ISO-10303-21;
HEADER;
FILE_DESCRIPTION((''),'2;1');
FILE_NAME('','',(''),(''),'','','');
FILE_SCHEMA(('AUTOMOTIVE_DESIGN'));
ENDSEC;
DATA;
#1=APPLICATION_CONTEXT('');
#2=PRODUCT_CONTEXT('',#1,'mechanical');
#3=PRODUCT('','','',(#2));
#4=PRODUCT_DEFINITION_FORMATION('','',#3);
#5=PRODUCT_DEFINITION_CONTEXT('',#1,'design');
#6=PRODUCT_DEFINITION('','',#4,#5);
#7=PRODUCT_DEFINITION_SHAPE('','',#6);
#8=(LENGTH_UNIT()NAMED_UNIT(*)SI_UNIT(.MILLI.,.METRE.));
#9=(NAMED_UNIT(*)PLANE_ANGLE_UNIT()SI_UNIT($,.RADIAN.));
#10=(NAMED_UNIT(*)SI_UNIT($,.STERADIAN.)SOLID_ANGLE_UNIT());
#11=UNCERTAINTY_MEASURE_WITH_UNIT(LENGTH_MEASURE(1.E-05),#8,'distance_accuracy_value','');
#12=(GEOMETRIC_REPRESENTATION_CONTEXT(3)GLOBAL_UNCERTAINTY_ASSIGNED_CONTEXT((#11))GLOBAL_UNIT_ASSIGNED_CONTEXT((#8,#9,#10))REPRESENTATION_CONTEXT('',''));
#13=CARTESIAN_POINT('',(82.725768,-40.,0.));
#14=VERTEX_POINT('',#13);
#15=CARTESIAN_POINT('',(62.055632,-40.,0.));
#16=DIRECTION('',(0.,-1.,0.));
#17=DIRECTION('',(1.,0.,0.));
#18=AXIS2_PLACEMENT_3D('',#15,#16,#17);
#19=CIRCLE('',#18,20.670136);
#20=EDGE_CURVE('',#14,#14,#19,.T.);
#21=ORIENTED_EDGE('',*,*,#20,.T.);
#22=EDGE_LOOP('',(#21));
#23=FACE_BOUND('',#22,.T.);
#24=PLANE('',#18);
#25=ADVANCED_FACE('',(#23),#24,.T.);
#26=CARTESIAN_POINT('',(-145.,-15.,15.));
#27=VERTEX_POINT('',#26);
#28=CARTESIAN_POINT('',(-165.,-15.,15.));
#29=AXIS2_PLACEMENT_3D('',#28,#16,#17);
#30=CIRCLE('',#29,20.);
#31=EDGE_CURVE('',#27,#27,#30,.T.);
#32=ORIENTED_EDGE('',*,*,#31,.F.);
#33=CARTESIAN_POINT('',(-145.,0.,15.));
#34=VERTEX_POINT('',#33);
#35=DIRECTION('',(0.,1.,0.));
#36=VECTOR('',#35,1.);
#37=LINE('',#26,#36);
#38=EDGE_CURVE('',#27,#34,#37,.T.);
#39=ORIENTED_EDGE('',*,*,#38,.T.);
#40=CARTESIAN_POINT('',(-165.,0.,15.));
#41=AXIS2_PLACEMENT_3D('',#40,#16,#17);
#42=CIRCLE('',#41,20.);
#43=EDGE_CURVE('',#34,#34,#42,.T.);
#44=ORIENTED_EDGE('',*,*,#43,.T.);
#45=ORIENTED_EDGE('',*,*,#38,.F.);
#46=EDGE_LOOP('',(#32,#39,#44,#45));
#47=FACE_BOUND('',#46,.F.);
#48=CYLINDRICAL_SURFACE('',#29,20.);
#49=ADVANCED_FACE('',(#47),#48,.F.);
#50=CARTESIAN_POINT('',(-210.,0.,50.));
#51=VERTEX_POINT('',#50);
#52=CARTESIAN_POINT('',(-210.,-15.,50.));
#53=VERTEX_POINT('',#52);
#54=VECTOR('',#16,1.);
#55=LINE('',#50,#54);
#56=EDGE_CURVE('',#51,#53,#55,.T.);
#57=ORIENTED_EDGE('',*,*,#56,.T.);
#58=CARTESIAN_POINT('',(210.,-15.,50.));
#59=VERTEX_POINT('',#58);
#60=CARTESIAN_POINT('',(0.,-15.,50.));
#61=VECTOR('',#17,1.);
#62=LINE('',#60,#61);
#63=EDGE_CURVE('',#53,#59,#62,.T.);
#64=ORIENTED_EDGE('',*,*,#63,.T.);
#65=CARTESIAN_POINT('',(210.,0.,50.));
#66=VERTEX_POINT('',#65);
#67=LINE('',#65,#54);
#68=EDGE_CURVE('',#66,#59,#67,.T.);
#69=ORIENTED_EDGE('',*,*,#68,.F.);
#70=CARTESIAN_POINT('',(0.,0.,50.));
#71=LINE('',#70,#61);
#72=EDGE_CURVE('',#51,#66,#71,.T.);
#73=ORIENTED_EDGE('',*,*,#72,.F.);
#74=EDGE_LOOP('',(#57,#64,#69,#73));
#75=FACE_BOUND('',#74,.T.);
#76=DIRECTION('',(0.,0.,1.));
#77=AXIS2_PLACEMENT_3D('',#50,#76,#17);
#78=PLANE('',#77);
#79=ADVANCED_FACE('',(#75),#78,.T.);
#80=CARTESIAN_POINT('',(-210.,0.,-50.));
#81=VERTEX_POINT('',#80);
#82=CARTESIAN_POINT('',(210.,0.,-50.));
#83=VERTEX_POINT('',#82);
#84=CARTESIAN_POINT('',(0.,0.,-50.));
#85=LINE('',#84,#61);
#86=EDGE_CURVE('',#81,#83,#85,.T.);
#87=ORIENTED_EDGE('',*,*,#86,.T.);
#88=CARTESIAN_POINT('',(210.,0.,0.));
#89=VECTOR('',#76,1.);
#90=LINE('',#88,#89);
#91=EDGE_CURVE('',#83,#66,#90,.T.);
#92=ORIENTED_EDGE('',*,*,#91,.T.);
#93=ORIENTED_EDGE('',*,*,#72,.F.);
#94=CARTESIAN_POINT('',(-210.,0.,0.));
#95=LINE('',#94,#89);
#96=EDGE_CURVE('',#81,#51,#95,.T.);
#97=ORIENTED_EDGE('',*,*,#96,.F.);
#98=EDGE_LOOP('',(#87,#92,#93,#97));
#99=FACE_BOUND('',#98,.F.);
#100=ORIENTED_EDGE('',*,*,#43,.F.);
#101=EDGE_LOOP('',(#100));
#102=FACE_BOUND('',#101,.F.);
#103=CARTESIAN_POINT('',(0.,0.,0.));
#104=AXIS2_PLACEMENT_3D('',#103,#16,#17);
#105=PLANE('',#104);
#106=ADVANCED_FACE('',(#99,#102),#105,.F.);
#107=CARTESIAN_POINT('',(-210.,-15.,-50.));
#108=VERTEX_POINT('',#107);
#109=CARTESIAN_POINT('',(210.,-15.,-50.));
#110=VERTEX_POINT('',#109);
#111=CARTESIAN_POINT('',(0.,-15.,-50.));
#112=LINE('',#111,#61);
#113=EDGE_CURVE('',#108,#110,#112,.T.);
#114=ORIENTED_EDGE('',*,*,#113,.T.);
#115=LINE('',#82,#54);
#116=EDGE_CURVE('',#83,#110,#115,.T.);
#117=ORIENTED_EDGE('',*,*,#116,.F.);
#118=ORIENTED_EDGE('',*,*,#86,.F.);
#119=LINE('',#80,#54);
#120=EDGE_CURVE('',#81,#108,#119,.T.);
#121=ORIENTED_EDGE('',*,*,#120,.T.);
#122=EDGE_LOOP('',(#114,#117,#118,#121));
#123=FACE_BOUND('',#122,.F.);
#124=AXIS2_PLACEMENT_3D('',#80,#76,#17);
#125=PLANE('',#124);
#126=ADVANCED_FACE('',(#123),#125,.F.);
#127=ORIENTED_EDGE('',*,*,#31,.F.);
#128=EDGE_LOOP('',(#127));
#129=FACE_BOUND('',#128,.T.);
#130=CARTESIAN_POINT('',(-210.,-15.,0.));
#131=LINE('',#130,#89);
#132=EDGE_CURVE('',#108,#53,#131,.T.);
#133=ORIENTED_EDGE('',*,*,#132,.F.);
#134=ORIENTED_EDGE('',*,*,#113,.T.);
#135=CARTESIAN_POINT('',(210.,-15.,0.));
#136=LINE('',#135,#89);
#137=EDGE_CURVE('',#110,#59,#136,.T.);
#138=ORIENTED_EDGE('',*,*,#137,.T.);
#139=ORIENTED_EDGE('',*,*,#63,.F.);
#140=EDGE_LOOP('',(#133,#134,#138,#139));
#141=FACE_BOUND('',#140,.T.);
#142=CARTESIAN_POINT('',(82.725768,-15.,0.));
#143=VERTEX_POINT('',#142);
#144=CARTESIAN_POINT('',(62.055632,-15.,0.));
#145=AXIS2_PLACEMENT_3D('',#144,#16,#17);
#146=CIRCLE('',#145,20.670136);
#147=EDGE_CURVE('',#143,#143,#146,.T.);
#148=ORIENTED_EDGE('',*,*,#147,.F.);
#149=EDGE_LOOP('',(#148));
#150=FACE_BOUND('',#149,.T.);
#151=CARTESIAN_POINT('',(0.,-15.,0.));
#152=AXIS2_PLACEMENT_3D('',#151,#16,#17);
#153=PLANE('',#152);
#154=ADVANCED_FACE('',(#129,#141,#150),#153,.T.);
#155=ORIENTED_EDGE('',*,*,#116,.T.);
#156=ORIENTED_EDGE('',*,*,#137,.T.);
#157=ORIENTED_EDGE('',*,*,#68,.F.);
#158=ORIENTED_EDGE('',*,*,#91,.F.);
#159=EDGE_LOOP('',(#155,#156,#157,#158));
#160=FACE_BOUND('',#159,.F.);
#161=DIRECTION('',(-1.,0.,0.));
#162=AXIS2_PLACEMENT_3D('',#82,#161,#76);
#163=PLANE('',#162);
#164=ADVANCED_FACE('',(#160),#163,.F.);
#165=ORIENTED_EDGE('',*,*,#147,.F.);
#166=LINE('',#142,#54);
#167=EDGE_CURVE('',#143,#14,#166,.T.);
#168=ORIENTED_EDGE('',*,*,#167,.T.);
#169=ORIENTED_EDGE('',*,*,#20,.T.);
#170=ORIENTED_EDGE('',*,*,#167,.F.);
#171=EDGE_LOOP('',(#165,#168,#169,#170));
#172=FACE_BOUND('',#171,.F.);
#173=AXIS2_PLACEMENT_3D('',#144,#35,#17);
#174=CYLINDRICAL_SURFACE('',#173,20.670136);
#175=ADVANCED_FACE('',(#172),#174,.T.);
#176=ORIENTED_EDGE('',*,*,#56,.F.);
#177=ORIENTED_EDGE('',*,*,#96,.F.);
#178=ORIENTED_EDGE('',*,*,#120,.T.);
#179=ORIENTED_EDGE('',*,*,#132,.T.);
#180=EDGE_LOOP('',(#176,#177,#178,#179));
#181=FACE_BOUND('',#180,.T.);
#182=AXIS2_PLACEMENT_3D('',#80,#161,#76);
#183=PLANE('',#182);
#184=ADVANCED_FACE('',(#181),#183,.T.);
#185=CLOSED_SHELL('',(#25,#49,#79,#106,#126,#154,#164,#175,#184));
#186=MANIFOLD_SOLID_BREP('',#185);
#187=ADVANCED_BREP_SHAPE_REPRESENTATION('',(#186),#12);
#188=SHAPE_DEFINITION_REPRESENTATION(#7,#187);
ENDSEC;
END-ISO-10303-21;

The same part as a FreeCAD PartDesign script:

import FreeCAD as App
import Part
import Sketcher
Q = App.Units.Quantity


def add_polygon(sketch, points):
    """Adds a closed chain of lines whose ends are joined by coincident constraints."""
    first, n = sketch.GeometryCount, len(points)
    for a, b in zip(points, points[1:] + points[:1]):
        sketch.addGeometry(Part.LineSegment(App.Vector(*a, 0), App.Vector(*b, 0)), False)
    for i in range(n):
        sketch.addConstraint(Sketcher.Constraint("Coincident", first + i, 2, first + (i + 1) % n, 1))

doc = App.newDocument("Part")
body = doc.addObject("PartDesign::Body", "Body")

# Sketch on XZ plane
sketch1 = body.newObject("Sketcher::SketchObject", "Sketch")
sketch1.AttachmentSupport = (doc.getObject("XZ_Plane"), [""])
sketch1.MapMode = "FlatFace"
add_polygon(sketch1, [(-210, 50), (-210, -50), (210, -50), (210, 50)])  # lines 0-3
sketch1.addConstraint(Sketcher.Constraint("Vertical", 0))
sketch1.addConstraint(Sketcher.Constraint("Horizontal", 1))
sketch1.addConstraint(Sketcher.Constraint("Vertical", 2))
sketch1.addConstraint(Sketcher.Constraint("Horizontal", 3))
sketch1.addConstraint(Sketcher.Constraint("Symmetric", 0, 2, 2, 2, -1, 1))
sketch1.addConstraint(Sketcher.Constraint("DistanceX", 1, 1, 1, 2, Q("420 mm")))
sketch1.addConstraint(Sketcher.Constraint("DistanceY", 0, 2, 0, 1, Q("100 mm")))
pad1 = body.newObject("PartDesign::Pad", "Pad")
pad1.Profile = sketch1
pad1.Length = 15

# Sketch on XZ plane
sketch2 = body.newObject("Sketcher::SketchObject", "Sketch001")
sketch2.AttachmentSupport = (doc.getObject("XZ_Plane"), [""])
sketch2.MapMode = "FlatFace"
sketch2.AttachmentOffset = App.Placement(App.Vector(0, 0, 15), App.Rotation())
sketch2.addGeometry(Part.Circle(App.Vector(-165, 15, 0), App.Vector(0, 0, 1), 20), False)
sketch2.addConstraint(Sketcher.Constraint("Diameter", 0, Q("40 mm")))
sketch2.addConstraint(Sketcher.Constraint("DistanceX", 0, 3, -1, 1, Q("165 mm")))
sketch2.addConstraint(Sketcher.Constraint("DistanceY", -1, 1, 0, 3, Q("15 mm")))
pocket1 = body.newObject("PartDesign::Pocket", "Pocket")
pocket1.Profile = sketch2
pocket1.Type = "ThroughAll"

# Sketch on XZ plane
sketch3 = body.newObject("Sketcher::SketchObject", "Sketch002")
sketch3.AttachmentSupport = (doc.getObject("XZ_Plane"), [""])
sketch3.MapMode = "FlatFace"
sketch3.AttachmentOffset = App.Placement(App.Vector(0, 0, 15), App.Rotation())
sketch3.addGeometry(Part.Circle(App.Vector(62.055632, 0, 0), App.Vector(0, 0, 1), 20.670136), False)
sketch3.addConstraint(Sketcher.Constraint("PointOnObject", 0, 3, -1))
sketch3.addConstraint(Sketcher.Constraint("Diameter", 0, Q("41.340272 mm")))
sketch3.addConstraint(Sketcher.Constraint("DistanceX", -1, 1, 0, 3, Q("62.055632 mm")))
pad2 = body.newObject("PartDesign::Pad", "Pad001")
pad2.Profile = sketch3
pad2.Length = 25

doc.recompute()
